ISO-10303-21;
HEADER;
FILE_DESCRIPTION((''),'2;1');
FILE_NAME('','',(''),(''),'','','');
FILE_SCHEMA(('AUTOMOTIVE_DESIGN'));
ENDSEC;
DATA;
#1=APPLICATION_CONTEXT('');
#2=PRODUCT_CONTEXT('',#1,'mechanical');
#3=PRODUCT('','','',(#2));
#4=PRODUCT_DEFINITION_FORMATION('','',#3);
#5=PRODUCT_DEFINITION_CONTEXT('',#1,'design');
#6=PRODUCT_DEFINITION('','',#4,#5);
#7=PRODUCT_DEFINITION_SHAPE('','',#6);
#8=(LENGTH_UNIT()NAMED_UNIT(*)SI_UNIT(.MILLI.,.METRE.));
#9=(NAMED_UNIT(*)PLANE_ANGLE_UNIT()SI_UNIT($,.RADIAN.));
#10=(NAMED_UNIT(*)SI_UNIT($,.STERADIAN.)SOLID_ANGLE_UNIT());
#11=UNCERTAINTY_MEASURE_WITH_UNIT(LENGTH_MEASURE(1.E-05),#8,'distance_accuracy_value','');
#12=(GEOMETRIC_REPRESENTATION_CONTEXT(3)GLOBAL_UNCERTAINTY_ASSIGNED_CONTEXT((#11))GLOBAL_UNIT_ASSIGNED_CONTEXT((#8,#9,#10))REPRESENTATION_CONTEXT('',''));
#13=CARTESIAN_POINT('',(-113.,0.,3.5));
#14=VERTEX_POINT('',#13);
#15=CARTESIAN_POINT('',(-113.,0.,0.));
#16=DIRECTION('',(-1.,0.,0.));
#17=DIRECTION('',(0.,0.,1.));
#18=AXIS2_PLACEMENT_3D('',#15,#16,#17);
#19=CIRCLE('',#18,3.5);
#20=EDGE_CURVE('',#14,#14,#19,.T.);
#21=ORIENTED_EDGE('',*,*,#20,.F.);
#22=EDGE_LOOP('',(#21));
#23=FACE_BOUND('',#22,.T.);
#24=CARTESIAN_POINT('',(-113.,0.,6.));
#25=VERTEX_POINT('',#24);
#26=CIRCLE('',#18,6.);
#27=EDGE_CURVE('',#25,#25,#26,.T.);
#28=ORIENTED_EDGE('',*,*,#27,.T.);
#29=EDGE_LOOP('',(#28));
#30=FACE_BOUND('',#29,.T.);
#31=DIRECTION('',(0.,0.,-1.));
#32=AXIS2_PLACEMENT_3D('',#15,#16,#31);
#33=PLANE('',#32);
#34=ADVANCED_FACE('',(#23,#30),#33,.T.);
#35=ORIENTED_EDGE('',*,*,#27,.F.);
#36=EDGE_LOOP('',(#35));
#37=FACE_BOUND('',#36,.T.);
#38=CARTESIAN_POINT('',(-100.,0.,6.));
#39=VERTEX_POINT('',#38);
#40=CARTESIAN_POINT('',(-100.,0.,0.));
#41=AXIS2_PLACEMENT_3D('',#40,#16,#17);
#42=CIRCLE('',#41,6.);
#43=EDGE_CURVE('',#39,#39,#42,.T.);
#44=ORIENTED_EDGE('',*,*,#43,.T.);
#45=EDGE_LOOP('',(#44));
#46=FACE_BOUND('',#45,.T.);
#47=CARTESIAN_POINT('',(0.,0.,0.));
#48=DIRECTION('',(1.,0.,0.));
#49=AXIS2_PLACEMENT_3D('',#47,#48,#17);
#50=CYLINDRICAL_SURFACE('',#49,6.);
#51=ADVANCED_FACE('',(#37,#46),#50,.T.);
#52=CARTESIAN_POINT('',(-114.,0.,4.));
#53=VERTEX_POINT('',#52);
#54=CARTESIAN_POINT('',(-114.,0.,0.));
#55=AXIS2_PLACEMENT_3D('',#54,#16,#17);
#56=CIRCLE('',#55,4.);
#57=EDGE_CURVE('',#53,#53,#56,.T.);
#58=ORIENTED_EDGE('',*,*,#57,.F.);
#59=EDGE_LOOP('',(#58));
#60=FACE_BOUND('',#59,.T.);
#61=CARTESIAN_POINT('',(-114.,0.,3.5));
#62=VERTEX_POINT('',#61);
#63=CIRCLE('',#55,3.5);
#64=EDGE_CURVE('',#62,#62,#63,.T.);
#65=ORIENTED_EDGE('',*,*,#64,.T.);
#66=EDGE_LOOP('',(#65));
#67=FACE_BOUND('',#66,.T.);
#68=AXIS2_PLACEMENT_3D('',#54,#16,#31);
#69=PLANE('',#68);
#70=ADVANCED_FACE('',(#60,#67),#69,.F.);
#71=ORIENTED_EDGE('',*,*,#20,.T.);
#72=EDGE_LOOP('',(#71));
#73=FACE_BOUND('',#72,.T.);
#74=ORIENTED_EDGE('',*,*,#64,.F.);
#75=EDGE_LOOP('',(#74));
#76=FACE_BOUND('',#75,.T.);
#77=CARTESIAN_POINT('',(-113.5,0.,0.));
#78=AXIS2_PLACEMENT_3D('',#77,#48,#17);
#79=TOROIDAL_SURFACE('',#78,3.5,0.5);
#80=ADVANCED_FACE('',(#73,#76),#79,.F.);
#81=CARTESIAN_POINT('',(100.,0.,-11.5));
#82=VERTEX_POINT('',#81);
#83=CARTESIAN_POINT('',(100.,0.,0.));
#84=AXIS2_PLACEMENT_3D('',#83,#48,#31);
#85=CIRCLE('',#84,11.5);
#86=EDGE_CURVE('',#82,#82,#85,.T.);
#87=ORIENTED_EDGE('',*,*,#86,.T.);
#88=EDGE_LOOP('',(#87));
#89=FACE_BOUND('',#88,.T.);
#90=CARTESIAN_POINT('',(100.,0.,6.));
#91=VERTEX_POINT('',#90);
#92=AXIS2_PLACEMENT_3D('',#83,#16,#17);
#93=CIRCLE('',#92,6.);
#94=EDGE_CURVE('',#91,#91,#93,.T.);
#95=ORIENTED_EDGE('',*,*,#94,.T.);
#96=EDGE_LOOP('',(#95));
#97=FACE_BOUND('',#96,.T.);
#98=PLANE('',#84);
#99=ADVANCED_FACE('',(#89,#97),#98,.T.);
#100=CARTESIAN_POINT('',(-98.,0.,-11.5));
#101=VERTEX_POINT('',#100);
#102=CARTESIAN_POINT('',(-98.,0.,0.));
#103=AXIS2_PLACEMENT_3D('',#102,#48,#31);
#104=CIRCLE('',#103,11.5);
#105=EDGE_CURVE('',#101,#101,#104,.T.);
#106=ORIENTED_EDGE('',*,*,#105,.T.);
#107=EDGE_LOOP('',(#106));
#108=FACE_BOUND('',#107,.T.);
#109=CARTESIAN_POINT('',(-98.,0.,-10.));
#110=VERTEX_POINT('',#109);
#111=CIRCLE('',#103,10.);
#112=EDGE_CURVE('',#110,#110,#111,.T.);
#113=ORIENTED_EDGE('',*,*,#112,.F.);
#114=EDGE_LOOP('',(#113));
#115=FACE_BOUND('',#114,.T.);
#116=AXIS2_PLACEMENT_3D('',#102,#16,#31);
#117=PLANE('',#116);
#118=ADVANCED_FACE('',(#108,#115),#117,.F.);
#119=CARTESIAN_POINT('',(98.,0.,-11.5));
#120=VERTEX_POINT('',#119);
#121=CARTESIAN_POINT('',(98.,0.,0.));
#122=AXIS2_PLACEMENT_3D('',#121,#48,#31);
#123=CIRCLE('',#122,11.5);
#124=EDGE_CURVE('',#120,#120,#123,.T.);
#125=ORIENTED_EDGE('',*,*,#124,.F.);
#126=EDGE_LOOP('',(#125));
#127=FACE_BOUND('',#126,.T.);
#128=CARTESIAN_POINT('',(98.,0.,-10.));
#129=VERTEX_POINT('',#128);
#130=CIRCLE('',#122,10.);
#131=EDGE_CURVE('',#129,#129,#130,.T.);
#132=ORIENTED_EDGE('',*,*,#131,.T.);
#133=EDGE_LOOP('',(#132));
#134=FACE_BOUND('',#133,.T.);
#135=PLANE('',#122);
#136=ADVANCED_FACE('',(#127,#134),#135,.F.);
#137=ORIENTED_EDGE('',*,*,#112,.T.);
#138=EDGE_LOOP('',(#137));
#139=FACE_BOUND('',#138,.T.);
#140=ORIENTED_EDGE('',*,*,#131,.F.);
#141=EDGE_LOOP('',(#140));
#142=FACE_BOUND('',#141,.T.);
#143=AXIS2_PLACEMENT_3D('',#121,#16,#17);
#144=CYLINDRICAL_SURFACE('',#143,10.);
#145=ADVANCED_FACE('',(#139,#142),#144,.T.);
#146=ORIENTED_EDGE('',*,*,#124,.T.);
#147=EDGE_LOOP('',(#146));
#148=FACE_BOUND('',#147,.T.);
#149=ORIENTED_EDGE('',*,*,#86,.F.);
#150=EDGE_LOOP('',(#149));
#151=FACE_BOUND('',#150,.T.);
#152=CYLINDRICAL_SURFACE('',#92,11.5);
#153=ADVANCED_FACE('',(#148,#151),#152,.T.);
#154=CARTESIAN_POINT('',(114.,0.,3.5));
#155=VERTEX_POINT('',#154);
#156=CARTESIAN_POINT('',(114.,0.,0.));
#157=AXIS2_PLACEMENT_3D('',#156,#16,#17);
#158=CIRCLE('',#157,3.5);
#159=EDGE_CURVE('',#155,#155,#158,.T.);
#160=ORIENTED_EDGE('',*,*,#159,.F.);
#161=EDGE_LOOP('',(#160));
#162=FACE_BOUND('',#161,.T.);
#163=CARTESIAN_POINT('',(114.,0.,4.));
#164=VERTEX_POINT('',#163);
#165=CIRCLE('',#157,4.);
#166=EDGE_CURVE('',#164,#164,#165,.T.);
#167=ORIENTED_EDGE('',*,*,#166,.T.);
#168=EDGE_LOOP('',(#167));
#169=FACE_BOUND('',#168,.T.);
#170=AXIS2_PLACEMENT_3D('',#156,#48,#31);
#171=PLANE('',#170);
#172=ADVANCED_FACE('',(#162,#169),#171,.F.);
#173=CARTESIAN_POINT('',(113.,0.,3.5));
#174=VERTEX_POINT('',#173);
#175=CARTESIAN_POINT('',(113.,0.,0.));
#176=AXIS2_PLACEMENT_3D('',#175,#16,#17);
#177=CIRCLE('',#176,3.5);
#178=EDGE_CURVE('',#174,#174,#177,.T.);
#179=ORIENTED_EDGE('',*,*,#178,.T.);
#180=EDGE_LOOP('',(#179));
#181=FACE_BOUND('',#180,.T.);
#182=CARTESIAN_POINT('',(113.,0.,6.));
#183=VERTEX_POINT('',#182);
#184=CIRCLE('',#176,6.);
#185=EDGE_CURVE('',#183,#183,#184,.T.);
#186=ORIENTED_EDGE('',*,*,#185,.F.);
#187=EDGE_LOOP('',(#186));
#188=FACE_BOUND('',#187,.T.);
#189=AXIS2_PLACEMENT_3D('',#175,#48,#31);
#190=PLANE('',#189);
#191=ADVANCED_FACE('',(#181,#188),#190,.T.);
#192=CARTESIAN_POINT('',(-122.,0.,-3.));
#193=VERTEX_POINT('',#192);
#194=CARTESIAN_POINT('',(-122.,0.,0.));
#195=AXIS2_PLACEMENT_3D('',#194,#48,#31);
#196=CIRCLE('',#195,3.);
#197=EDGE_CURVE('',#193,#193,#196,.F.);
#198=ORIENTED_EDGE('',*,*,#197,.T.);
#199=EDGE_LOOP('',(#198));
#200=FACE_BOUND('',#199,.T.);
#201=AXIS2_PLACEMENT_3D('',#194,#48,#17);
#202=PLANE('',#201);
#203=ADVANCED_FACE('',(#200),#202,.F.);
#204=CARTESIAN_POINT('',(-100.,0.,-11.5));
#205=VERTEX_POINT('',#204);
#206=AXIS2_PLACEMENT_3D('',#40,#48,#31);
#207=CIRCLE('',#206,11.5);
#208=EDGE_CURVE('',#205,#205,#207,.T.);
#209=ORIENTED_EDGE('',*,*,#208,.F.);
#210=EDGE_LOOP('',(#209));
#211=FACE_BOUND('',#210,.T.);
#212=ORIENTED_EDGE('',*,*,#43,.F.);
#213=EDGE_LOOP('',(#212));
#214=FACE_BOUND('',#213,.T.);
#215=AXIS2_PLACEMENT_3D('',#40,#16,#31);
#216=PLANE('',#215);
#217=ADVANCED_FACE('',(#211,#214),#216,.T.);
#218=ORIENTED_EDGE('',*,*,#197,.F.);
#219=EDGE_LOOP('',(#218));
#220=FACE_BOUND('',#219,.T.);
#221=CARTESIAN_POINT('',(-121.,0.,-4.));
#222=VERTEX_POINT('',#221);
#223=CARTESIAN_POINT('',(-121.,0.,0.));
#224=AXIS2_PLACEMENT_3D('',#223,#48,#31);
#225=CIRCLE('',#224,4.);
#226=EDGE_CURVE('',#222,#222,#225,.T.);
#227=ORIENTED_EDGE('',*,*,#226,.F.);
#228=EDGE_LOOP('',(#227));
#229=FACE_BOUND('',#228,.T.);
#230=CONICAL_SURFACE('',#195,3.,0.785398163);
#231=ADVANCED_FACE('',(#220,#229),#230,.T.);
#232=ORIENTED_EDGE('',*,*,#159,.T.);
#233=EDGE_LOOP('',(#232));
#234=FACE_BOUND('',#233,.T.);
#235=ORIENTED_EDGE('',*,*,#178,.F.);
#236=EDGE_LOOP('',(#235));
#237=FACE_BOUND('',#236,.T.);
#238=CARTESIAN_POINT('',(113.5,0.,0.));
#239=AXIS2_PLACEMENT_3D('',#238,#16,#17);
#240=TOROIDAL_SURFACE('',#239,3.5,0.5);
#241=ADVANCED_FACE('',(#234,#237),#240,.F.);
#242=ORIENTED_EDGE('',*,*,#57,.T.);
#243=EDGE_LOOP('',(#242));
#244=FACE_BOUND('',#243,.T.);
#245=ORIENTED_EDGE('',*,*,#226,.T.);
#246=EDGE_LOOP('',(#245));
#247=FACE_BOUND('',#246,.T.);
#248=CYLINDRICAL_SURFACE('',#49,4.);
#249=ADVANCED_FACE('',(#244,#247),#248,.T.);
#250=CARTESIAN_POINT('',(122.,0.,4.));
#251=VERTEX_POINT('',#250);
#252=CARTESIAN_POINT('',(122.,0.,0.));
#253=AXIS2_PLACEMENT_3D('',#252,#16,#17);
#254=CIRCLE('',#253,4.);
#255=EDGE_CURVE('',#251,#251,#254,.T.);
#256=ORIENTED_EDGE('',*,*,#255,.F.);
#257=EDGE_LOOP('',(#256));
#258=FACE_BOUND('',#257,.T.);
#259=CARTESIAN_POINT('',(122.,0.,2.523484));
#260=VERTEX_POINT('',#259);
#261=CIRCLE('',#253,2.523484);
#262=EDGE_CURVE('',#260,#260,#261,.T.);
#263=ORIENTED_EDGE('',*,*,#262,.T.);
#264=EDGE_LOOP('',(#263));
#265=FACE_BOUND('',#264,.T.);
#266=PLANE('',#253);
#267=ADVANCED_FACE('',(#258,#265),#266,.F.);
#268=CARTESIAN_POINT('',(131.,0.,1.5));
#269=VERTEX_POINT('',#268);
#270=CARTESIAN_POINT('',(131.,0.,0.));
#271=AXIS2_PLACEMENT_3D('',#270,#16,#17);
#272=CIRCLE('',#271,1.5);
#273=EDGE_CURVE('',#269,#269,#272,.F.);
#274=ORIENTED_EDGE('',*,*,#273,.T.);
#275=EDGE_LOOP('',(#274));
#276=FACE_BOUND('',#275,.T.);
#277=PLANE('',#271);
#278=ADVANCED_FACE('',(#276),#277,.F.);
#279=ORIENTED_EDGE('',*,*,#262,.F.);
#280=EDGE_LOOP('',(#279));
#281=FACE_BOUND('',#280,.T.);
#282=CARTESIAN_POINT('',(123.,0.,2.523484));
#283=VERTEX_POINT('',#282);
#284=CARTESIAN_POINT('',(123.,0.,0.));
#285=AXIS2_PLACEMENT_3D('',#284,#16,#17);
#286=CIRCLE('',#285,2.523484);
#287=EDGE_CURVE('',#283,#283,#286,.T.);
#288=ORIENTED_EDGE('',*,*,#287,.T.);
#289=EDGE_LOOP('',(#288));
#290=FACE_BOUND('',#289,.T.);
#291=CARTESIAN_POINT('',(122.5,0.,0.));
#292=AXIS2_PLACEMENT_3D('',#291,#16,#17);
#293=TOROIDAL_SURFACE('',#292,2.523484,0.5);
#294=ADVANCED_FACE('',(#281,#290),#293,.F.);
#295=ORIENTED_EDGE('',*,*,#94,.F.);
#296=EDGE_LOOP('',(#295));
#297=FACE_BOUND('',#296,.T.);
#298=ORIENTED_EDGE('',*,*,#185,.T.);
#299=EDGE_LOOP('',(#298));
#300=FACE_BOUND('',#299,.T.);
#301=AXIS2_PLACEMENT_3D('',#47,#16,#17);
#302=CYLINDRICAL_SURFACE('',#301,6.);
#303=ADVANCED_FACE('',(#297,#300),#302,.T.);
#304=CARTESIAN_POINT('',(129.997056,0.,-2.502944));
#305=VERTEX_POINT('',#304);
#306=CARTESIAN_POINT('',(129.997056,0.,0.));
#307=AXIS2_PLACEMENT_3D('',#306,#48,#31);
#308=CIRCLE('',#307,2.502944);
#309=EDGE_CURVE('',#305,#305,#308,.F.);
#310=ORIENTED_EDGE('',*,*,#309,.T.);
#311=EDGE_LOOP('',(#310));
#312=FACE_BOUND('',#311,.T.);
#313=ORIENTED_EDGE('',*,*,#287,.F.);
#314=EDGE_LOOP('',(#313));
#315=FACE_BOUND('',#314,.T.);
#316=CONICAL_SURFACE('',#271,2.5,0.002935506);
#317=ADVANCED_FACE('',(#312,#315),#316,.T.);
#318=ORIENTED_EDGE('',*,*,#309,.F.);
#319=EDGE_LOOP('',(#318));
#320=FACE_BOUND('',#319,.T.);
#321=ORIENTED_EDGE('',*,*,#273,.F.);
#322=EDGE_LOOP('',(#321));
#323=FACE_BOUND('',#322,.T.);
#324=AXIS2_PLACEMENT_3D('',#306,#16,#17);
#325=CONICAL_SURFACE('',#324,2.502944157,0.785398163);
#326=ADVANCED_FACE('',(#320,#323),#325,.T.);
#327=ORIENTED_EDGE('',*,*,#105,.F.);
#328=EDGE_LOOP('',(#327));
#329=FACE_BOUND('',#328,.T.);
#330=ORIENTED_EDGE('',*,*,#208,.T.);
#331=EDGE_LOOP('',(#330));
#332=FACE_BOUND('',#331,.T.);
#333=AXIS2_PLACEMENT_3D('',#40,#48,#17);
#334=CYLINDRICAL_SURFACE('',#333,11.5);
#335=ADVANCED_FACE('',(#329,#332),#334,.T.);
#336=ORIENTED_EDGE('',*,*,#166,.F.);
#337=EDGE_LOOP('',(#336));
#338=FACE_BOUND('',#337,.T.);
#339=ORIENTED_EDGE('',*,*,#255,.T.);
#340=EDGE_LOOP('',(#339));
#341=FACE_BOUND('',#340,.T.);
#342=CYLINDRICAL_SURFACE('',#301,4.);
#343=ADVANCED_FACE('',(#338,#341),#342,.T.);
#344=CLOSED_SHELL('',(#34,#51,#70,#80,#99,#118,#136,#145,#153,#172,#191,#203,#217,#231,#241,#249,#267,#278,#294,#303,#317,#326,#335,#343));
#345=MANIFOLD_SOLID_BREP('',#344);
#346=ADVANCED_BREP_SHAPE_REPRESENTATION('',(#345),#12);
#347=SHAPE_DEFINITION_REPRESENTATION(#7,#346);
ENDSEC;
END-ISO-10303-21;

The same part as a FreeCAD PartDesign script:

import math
import FreeCAD as App
import Part
import Sketcher
from FreeCAD import Vector


def edges_at(feature, points):
    """Names of the edges that pass closest to the given points."""
    edges = feature.Shape.Edges
    near = lambda p: min(range(len(edges)), key=lambda i: edges[i].distToShape(Part.Vertex(*p))[0])
    return sorted({f"Edge{near(p) + 1}" for p in points})

doc = App.newDocument("Part")
params = doc.addObject("Spreadsheet::Sheet", "Params")
for row, (alias, value) in enumerate([
    ("sketch1_diameter", "20 mm"),
    ("pad1_length", "98 mm"),
    ("sketch2_diameter", "23 mm"),
    ("pad2_length", "2 mm"),
    ("sketch3_radius", "0.5 mm"),
    ("sketch3_width", "31 mm"),
    ("sketch3_width2", "8 mm"),
    ("sketch3_width3", "13 mm"),
    ("sketch3_height", "6 mm"),
    ("revolution_angle", "360 deg"),
    ("chamfer_size", "1 mm"),
    ("chamfer_size2", "1.002948 mm"),
    ("pocket1_length", "9 mm"),
    ("chamfer2_size", "1 mm"),
], start=1):
    params.set(f"A{row}", alias)
    params.set(f"B{row}", "=" + value)
    params.setAlias(f"B{row}", alias)

body = doc.addObject("PartDesign::Body", "Body")

# Sketch on YZ plane
sketch1 = body.newObject("Sketcher::SketchObject", "Sketch")
sketch1.AttachmentSupport = (doc.getObject("YZ_Plane"), [""])
sketch1.MapMode = "FlatFace"
sketch1.addGeometry(Part.Circle(Vector(0, 0, 0), Vector(0, 0, 1), 10), False)
sketch1.addConstraint([
    Sketcher.Constraint("Coincident", 0, 3, -1, 1),
    Sketcher.Constraint("Diameter", 0, 20.0),
])
sketch1.setExpression("Constraints[1]", "Params.sketch1_diameter")
pad1 = body.newObject("PartDesign::Pad", "Pad")
pad1.Profile = sketch1
pad1.setExpression("Length", "Params.pad1_length")

# Sketch on YZ plane
sketch2 = body.newObject("Sketcher::SketchObject", "Sketch001")
sketch2.AttachmentSupport = (doc.getObject("YZ_Plane"), [""])
sketch2.MapMode = "FlatFace"
sketch2.AttachmentOffset = App.Placement(Vector(0, 0, 98), App.Rotation())
sketch2.addGeometry(Part.Circle(Vector(0, 0, 0), Vector(0, 0, 1), 11.5), False)
sketch2.addConstraint([
    Sketcher.Constraint("Coincident", 0, 3, -1, 1),
    Sketcher.Constraint("Diameter", 0, 23.0),
])
sketch2.setExpression("Constraints[1]", "Params.sketch2_diameter")
pad2 = body.newObject("PartDesign::Pad", "Pad001")
pad2.Profile = sketch2
pad2.setExpression("Length", "Params.pad2_length")
body2 = doc.addObject("PartDesign::Body", "Body001")
doc.recompute()

body2.BaseFeature = body
doc.recompute()

mirroring = doc.addObject("Part::Mirroring", "Mirroring")
mirroring.Source = body
mirroring.Base = Vector(0, 0, 0)
mirroring.Normal = Vector(1, 0, 0)
body3 = doc.addObject("PartDesign::Body", "Body002")
body3.BaseFeature = mirroring
boolean = body2.newObject("PartDesign::Boolean", "Boolean")
boolean.Type = "Fuse"
boolean.addObjects([body3])
doc.recompute()

# Sketch on XY plane
sketch3 = body2.newObject("Sketcher::SketchObject", "Sketch002")
sketch3.AttachmentSupport = (doc.getObject("XY_Plane001"), [""])
sketch3.MapMode = "FlatFace"
sketch3.addGeometry([
    Part.LineSegment(Vector(100, 6, 0), Vector(100, 0, 0)),  # 0
    Part.LineSegment(Vector(100, 0, 0), Vector(131, 0, 0)),  # 1
    Part.LineSegment(Vector(131, 0, 0), Vector(131, 2.5, 0)),  # 2
    Part.LineSegment(Vector(131, 2.5, 0), Vector(123, 2.523484, 0)),  # 3
    Part.ArcOfCircle(Part.Circle(Vector(122.5, 2.523484, 0), Vector(0, 0, 1), 0.5), math.radians(-90), math.radians(0)),  # 4
    Part.ArcOfCircle(Part.Circle(Vector(122.5, 2.523484, 0), Vector(0, 0, 1), 0.5), math.radians(180), math.radians(270)),  # 5
    Part.LineSegment(Vector(122, 2.523484, 0), Vector(122, 4, 0)),  # 6
    Part.LineSegment(Vector(122, 4, 0), Vector(114, 4, 0)),  # 7
    Part.LineSegment(Vector(114, 4, 0), Vector(114, 3.5, 0)),  # 8
    Part.ArcOfCircle(Part.Circle(Vector(113.5, 3.5, 0), Vector(0, 0, 1), 0.5), math.radians(-90), math.radians(0)),  # 9
    Part.ArcOfCircle(Part.Circle(Vector(113.5, 3.5, 0), Vector(0, 0, 1), 0.5), math.radians(180), math.radians(270)),  # 10
    Part.LineSegment(Vector(113, 3.5, 0), Vector(113, 6, 0)),  # 11
    Part.LineSegment(Vector(113, 6, 0), Vector(100, 6, 0)),  # 12
], False)
sketch3.addConstraint([
    Sketcher.Constraint("Coincident", 0, 2, 1, 1),
    Sketcher.Constraint("Coincident", 1, 2, 2, 1),
    Sketcher.Constraint("Coincident", 2, 2, 3, 1),
    Sketcher.Constraint("Coincident", 3, 2, 4, 2),
    Sketcher.Constraint("Tangent", 4, 1, 5, 2),
    Sketcher.Constraint("Tangent", 5, 1, 6, 1),
    Sketcher.Constraint("Coincident", 6, 2, 7, 1),
    Sketcher.Constraint("Coincident", 7, 2, 8, 1),
    Sketcher.Constraint("Tangent", 8, 2, 9, 2),
    Sketcher.Constraint("Tangent", 9, 1, 10, 2),
    Sketcher.Constraint("Tangent", 10, 1, 11, 1),
    Sketcher.Constraint("Coincident", 11, 2, 12, 1),
    Sketcher.Constraint("Coincident", 12, 2, 0, 1),
    Sketcher.Constraint("Vertical", 0),
    Sketcher.Constraint("Horizontal", 1),
    Sketcher.Constraint("Vertical", 2),
    Sketcher.Constraint("Vertical", 6),
    Sketcher.Constraint("Horizontal", 7),
    Sketcher.Constraint("Vertical", 8),
    Sketcher.Constraint("Vertical", 11),
    Sketcher.Constraint("Horizontal", 12),
    Sketcher.Constraint("Equal", 4, 5),
    Sketcher.Constraint("Equal", 5, 9),
    Sketcher.Constraint("Equal", 9, 10),
    Sketcher.Constraint("PointOnObject", 0, 2, -1),
    Sketcher.Constraint("Horizontal", 5, 3, 3, 2),
    Sketcher.Constraint("Vertical", 5, 3, 4, 1),
    Sketcher.Constraint("Vertical", 10, 3, 9, 1),
    Sketcher.Constraint("Equal", 2, 11),
    Sketcher.Constraint("Radius", 4, 0.5),
    Sketcher.Constraint("DistanceX", 1, 1, 1, 2, 31.0),
    Sketcher.Constraint("DistanceX", 7, 2, 7, 1, 8.0),
    Sketcher.Constraint("DistanceX", 12, 2, 12, 1, 13.0),
    Sketcher.Constraint("DistanceY", 0, 2, 0, 1, 6.0),
    Sketcher.Constraint("DistanceY", 2, 1, 2, 2, 2.5),
    Sketcher.Constraint("DistanceY", 8, 2, 8, 1, 0.5),
    Sketcher.Constraint("DistanceX", -1, 1, 0, 2, 100.0),
    Sketcher.Constraint("DistanceY", 6, 1, 6, 2, 1.476516),
])
sketch3.setExpression("Constraints[29]", "Params.sketch3_radius")
sketch3.setExpression("Constraints[30]", "Params.sketch3_width")
sketch3.setExpression("Constraints[31]", "Params.sketch3_width2")
sketch3.setExpression("Constraints[32]", "Params.sketch3_width3")
sketch3.setExpression("Constraints[33]", "Params.sketch3_height")
revolution = body2.newObject("PartDesign::Revolution", "Revolution")
revolution.Profile = sketch3
revolution.ReferenceAxis = (sketch3, ["H_Axis"])
revolution.setExpression("Angle", "Params.revolution_angle")
doc.recompute()

chamfer = body2.newObject("PartDesign::Chamfer", "Chamfer")
chamfer.Base = (revolution, edges_at(revolution, [(131, 0, -2.5)]))
chamfer.ChamferType = "Two distances"
chamfer.setExpression("Size", "Params.chamfer_size")
chamfer.setExpression("Size2", "Params.chamfer_size2")
doc.recompute()

mirrored = body2.newObject("PartDesign::Mirrored", "Mirrored")
mirrored.Originals = [revolution]
mirrored.MirrorPlane = (doc.getObject("YZ_Plane001"), [""])
body2.Tip = mirrored

# Sketch on YZ plane
sketch4 = body2.newObject("Sketcher::SketchObject", "Sketch003")
sketch4.AttachmentSupport = (doc.getObject("YZ_Plane001"), [""])
sketch4.MapMode = "FlatFace"
sketch4.AttachmentOffset = App.Placement(Vector(0, 0, -131), App.Rotation())
sketch4.addGeometry(Part.Circle(Vector(0, 0, 0), Vector(0, 0, 1), 2.523484), False)
sketch4.addConstraint([
    Sketcher.Constraint("Coincident", 0, 3, -1, 1),
    Sketcher.Constraint("Diameter", 0, 5.046968),
])
pocket1 = body2.newObject("PartDesign::Pocket", "Pocket")
pocket1.Profile = sketch4
pocket1.setExpression("Length", "Params.pocket1_length")
pocket1.Reversed = True
doc.recompute()

chamfer2 = body2.newObject("PartDesign::Chamfer", "Chamfer001")
chamfer2.Base = (pocket1, edges_at(pocket1, [(-122, 0, -4)]))
chamfer2.setExpression("Size", "Params.chamfer2_size")
mirroring.Visibility = False

doc.recompute()
